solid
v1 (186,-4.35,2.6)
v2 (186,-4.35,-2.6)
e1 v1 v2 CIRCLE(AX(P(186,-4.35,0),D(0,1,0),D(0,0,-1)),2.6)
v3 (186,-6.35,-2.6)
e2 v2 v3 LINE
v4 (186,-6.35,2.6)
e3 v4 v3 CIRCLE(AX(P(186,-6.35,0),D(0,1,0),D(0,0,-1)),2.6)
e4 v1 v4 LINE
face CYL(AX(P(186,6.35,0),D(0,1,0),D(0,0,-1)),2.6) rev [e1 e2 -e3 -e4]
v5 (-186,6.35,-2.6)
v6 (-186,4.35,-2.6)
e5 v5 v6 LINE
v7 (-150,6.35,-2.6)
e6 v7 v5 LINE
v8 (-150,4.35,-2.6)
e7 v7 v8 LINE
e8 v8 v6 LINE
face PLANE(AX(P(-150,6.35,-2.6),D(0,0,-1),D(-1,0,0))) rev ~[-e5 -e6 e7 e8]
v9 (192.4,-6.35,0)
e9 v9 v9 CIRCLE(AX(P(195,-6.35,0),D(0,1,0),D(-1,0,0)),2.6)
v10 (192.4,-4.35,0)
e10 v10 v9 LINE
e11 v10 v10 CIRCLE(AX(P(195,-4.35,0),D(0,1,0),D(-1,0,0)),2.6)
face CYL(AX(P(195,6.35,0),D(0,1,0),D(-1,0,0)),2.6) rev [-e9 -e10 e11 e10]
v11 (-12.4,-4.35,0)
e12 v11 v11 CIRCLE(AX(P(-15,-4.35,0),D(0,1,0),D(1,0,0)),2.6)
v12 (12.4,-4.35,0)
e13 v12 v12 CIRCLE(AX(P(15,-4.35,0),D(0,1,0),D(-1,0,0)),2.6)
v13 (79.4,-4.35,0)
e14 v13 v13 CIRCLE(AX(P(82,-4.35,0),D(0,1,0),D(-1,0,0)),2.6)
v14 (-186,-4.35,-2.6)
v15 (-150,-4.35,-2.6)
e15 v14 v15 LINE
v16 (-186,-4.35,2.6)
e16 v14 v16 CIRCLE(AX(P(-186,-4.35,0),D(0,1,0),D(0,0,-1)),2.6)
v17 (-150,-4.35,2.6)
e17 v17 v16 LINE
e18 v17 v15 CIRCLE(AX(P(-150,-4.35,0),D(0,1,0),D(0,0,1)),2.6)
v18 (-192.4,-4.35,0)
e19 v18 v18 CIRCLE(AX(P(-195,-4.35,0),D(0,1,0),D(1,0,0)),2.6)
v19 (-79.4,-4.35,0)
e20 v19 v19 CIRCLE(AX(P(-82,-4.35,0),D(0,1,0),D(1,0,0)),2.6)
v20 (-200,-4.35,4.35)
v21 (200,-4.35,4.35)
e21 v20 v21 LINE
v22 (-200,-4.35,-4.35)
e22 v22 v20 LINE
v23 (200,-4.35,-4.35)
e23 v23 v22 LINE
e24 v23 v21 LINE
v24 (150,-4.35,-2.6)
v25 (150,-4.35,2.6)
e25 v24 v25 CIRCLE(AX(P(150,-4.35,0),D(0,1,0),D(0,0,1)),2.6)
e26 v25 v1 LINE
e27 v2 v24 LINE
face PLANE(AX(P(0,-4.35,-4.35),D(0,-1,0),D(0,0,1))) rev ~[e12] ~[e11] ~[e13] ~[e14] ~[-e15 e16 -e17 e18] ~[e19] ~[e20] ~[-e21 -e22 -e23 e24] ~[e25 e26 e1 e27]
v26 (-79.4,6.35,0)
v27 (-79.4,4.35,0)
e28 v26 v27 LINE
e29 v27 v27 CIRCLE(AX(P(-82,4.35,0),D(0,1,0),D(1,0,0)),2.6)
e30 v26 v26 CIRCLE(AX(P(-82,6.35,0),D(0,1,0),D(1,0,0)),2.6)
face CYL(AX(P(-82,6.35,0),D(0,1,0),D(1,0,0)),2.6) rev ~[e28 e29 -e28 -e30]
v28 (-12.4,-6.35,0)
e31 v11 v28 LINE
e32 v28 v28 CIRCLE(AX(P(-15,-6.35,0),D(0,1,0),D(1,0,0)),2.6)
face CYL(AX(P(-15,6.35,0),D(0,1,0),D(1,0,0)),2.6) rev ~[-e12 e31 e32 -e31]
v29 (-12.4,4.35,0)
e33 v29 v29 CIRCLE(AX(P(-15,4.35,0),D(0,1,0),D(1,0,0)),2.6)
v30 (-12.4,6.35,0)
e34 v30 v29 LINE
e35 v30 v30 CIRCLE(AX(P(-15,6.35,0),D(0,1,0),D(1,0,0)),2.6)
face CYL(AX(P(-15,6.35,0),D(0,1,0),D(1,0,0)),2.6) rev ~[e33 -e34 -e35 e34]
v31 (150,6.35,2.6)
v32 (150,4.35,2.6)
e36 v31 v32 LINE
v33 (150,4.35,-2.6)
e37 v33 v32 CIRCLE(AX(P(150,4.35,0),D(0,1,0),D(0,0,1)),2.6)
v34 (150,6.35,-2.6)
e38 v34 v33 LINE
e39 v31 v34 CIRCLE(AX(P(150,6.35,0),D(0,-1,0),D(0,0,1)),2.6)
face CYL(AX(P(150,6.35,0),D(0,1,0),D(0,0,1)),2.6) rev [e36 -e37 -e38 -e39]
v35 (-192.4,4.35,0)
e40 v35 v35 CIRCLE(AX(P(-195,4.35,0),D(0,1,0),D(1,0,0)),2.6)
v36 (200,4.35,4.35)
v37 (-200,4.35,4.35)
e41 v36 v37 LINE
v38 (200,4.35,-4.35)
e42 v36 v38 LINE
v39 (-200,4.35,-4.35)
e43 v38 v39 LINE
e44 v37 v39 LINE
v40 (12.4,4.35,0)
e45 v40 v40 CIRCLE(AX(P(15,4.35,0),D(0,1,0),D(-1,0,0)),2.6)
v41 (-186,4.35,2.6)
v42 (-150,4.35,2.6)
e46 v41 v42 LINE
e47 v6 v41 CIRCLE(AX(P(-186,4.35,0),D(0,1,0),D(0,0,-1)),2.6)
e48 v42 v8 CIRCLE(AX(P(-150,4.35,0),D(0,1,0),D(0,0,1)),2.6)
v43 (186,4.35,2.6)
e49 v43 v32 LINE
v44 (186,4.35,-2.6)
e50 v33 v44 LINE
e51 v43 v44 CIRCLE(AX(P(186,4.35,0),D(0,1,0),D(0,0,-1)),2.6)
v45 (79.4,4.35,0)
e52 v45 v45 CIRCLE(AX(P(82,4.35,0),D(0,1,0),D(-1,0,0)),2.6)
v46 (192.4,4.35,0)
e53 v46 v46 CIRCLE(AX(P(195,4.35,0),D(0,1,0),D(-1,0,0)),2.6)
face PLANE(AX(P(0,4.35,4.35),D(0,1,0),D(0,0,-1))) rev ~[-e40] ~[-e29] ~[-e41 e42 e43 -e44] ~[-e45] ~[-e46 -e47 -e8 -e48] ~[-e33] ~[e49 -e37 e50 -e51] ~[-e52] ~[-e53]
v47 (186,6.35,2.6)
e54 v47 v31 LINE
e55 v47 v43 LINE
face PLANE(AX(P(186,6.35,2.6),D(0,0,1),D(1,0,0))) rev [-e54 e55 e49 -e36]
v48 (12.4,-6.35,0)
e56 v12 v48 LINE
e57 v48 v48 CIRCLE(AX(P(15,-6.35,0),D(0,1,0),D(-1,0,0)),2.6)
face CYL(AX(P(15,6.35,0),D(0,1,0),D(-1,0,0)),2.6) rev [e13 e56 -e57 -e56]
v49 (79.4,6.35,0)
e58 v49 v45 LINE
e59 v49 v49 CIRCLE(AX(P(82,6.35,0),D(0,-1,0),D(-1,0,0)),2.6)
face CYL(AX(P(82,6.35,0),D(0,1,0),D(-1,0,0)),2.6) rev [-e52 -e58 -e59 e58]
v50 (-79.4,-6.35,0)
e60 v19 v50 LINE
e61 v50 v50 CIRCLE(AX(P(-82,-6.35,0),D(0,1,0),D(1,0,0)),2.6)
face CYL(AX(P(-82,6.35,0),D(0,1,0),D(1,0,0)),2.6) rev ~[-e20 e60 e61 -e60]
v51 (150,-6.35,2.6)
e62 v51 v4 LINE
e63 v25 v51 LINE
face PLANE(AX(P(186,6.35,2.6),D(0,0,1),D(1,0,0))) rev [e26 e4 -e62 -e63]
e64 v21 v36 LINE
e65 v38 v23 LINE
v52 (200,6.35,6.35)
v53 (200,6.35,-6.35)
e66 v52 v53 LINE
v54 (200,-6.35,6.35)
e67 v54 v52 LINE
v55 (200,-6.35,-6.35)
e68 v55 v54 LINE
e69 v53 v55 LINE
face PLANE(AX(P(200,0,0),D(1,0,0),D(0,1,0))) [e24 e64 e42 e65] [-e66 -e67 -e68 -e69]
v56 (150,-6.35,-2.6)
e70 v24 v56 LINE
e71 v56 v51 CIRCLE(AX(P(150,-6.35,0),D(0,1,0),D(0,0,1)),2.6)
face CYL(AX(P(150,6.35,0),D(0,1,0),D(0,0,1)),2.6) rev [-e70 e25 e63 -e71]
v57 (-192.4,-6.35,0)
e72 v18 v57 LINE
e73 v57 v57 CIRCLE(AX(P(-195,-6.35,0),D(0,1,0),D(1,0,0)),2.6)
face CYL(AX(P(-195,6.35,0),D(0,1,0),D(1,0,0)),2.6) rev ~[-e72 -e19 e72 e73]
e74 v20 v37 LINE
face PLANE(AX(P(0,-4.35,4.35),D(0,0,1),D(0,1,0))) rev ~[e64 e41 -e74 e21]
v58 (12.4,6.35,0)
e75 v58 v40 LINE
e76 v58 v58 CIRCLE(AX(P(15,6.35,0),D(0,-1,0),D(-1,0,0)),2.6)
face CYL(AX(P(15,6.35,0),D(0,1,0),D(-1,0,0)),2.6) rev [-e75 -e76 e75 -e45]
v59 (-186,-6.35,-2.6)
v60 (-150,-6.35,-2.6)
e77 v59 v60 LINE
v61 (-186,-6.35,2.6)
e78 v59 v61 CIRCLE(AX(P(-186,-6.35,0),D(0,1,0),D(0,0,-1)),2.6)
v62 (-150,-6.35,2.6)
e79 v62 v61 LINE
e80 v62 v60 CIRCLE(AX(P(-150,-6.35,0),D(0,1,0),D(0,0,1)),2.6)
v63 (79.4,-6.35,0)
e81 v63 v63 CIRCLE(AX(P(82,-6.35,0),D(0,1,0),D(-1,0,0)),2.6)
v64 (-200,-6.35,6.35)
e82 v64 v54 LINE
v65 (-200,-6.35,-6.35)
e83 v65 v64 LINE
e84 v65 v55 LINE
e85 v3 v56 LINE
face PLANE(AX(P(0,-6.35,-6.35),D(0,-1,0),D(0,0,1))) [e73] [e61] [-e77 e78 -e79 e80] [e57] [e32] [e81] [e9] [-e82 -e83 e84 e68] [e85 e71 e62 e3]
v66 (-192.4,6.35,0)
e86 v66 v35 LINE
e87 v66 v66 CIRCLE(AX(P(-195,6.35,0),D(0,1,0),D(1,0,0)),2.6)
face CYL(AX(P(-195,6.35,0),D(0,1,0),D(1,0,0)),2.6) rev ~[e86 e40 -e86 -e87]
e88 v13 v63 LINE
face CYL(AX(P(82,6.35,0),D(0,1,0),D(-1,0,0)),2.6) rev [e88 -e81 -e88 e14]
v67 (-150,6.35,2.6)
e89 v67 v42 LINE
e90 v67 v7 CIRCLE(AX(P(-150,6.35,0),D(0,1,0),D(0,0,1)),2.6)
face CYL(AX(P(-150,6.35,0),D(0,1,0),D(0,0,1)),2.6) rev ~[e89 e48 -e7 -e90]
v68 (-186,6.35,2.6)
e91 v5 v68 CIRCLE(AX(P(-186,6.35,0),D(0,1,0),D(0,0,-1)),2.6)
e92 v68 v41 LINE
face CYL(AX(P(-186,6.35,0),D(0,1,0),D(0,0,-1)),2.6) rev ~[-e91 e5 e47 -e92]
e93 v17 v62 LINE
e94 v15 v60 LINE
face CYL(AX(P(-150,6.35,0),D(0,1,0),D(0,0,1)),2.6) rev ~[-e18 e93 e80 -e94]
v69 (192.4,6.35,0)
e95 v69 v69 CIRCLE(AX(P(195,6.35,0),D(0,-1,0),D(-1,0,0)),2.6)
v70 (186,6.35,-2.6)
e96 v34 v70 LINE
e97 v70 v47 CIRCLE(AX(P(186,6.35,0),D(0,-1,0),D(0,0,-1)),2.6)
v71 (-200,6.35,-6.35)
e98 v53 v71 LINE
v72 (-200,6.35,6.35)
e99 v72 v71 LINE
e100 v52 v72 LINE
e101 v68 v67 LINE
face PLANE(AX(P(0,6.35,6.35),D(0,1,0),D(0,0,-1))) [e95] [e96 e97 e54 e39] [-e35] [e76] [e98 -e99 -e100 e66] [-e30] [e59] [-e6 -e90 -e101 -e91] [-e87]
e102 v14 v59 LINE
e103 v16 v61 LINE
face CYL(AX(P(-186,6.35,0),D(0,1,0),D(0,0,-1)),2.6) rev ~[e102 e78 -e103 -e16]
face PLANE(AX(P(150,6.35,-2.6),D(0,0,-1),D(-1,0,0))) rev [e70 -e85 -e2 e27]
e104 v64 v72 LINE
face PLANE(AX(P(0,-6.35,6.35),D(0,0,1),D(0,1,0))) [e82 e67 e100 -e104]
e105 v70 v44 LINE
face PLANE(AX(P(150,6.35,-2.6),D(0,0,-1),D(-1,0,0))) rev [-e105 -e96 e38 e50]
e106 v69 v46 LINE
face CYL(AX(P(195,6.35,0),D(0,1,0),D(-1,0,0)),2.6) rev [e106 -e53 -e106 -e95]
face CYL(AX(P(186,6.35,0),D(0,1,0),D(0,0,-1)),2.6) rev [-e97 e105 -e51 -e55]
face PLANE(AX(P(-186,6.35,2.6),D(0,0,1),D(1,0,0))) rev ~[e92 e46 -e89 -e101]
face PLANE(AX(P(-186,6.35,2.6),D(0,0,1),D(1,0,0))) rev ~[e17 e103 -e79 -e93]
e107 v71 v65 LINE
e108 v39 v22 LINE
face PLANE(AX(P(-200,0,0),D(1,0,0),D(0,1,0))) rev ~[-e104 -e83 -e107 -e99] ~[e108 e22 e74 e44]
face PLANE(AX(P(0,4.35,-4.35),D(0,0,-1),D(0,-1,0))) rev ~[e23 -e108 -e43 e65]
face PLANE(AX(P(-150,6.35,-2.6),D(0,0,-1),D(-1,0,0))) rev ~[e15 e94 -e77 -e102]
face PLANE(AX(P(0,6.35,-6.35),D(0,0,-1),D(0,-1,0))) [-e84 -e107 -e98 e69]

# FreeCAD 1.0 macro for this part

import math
import FreeCAD as App
import Part
import Sketcher
from FreeCAD import Vector
Q = App.Units.Quantity


def add_polygon(sketch, points):
    """Adds a closed chain of lines whose ends are joined by coincident constraints."""
    first, n = sketch.GeometryCount, len(points)
    for a, b in zip(points, points[1:] + points[:1]):
        sketch.addGeometry(Part.LineSegment(App.Vector(*a, 0), App.Vector(*b, 0)), False)
    for i in range(n):
        sketch.addConstraint(Sketcher.Constraint("Coincident", first + i, 2, first + (i + 1) % n, 1))

doc = App.newDocument("Part")
params = doc.addObject("Spreadsheet::Sheet", "Params")
for row, (alias, value) in enumerate([
    ("sketch1_width", "12.7 mm"),
    ("pad1_length", "400 mm"),
    ("sketch2_diameter", "5.2 mm"),
    ("sketch2_width", "36 mm"),
    ("pocket1_length", "100 mm"),
], start=1):
    params.set(f"A{row}", alias)
    params.set(f"B{row}", "=" + value)
    params.setAlias(f"B{row}", alias)

body = doc.addObject("PartDesign::Body", "Body")

sketch1 = body.newObject("Sketcher::SketchObject", "Sketch")
sketch1.AttachmentSupport = (doc.getObject("YZ_Plane"), [""])
sketch1.MapMode = "FlatFace"
add_polygon(sketch1, [(6, 6), (-6, 6), (-6, -6), (6, -6)])
add_polygon(sketch1, [(-4, -4), (-4, 4), (4, 4), (4, -4)])
sketch1.addConstraint([
    Sketcher.Constraint("Horizontal", 0),
    Sketcher.Constraint("Vertical", 1),
    Sketcher.Constraint("Horizontal", 2),
    Sketcher.Constraint("Vertical", 3),
    Sketcher.Constraint("Vertical", 4),
    Sketcher.Constraint("Horizontal", 5),
    Sketcher.Constraint("Vertical", 6),
    Sketcher.Constraint("Horizontal", 7),
    Sketcher.Constraint("Symmetric", 0, 2, 2, 2, -1, 1),
    Sketcher.Constraint("Symmetric", 4, 2, 6, 2, -1, 1),
    Sketcher.Constraint("Equal", 2, 1),
    Sketcher.Constraint("Equal", 7, 4),
    Sketcher.Constraint("DistanceX", 0, 2, 0, 1, Q("12.7 mm")),
    Sketcher.Constraint("DistanceX", 0, 2, 4, 2, Q("2 mm")),
])
sketch1.setExpression("Constraints[20]", "Params.sketch1_width")
pad1 = body.newObject("PartDesign::Pad", "Pad")
pad1.Profile = sketch1
pad1.setExpression("Length", "Params.pad1_length")
pad1.Midplane = True

sketch2 = body.newObject("Sketcher::SketchObject", "Sketch001")
sketch2.AttachmentSupport = (doc.getObject("XZ_Plane"), [""])
sketch2.MapMode = "FlatFace"
sketch2.AttachmentOffset = App.Placement(Vector(0, 0, -6.35), App.Rotation())
sketch2.addGeometry([
    Part.Circle(Vector(-195, 0, 0), Vector(0, 0, 1), 2.6),
    Part.ArcOfCircle(Part.Circle(Vector(-186, 0, 0), Vector(0, 0, 1), 2.6), math.radians(90), math.radians(270)),
    Part.LineSegment(Vector(-186, 2.6, 0), Vector(-150, 2.6, 0)),
    Part.ArcOfCircle(Part.Circle(Vector(-150, 0, 0), Vector(0, 0, 1), 2.6), math.radians(-90), math.radians(90)),
    Part.LineSegment(Vector(-150, -2.6, 0), Vector(-186, -2.6, 0)),
    Part.Circle(Vector(-82, 0, 0), Vector(0, 0, 1), 2.6),
    Part.Circle(Vector(-15, 0, 0), Vector(0, 0, 1), 2.6),
], False)
sketch2.addConstraint([
    Sketcher.Constraint("Tangent", 1, 1, 2, 1),
    Sketcher.Constraint("Tangent", 2, 2, 3, 2),
    Sketcher.Constraint("Tangent", 3, 1, 4, 1),
    Sketcher.Constraint("Tangent", 4, 2, 1, 2),
    Sketcher.Constraint("Horizontal", 2),
    Sketcher.Constraint("Horizontal", 4),
    Sketcher.Constraint("Equal", 0, 1),
    Sketcher.Constraint("Equal", 3, 5),
    Sketcher.Constraint("Equal", 5, 6),
    Sketcher.Constraint("PointOnObject", 0, 3, -1),
    Sketcher.Constraint("PointOnObject", 1, 3, -1),
    Sketcher.Constraint("PointOnObject", 5, 3, -1),
    Sketcher.Constraint("PointOnObject", 6, 3, -1),
    Sketcher.Constraint("Diameter", 0, Q("5.2 mm")),
    Sketcher.Constraint("DistanceX", 2, 1, 2, 2, Q("36 mm")),
    Sketcher.Constraint("DistanceX", 6, 3, -1, 1, Q("15 mm")),
    Sketcher.Constraint("DistanceX", 0, 3, 1, 3, Q("9 mm")),
    Sketcher.Constraint("DistanceX", 5, 3, 6, 3, Q("67 mm")),
    Sketcher.Constraint("DistanceX", 0, 3, -1, 1, Q("195 mm")),
])
sketch2.setExpression("Constraints[13]", "Params.sketch2_diameter")
sketch2.setExpression("Constraints[14]", "Params.sketch2_width")
pocket1 = body.newObject("PartDesign::Pocket", "Pocket")
pocket1.Profile = sketch2
pocket1.setExpression("Length", "Params.pocket1_length")
pocket1.Reversed = True
doc.recompute()

mirrored = body.newObject("PartDesign::Mirrored", "Mirrored")
mirrored.Originals = [pocket1]
mirrored.MirrorPlane = (doc.getObject("YZ_Plane"), [""])
body.Tip = mirrored

doc.recompute()
